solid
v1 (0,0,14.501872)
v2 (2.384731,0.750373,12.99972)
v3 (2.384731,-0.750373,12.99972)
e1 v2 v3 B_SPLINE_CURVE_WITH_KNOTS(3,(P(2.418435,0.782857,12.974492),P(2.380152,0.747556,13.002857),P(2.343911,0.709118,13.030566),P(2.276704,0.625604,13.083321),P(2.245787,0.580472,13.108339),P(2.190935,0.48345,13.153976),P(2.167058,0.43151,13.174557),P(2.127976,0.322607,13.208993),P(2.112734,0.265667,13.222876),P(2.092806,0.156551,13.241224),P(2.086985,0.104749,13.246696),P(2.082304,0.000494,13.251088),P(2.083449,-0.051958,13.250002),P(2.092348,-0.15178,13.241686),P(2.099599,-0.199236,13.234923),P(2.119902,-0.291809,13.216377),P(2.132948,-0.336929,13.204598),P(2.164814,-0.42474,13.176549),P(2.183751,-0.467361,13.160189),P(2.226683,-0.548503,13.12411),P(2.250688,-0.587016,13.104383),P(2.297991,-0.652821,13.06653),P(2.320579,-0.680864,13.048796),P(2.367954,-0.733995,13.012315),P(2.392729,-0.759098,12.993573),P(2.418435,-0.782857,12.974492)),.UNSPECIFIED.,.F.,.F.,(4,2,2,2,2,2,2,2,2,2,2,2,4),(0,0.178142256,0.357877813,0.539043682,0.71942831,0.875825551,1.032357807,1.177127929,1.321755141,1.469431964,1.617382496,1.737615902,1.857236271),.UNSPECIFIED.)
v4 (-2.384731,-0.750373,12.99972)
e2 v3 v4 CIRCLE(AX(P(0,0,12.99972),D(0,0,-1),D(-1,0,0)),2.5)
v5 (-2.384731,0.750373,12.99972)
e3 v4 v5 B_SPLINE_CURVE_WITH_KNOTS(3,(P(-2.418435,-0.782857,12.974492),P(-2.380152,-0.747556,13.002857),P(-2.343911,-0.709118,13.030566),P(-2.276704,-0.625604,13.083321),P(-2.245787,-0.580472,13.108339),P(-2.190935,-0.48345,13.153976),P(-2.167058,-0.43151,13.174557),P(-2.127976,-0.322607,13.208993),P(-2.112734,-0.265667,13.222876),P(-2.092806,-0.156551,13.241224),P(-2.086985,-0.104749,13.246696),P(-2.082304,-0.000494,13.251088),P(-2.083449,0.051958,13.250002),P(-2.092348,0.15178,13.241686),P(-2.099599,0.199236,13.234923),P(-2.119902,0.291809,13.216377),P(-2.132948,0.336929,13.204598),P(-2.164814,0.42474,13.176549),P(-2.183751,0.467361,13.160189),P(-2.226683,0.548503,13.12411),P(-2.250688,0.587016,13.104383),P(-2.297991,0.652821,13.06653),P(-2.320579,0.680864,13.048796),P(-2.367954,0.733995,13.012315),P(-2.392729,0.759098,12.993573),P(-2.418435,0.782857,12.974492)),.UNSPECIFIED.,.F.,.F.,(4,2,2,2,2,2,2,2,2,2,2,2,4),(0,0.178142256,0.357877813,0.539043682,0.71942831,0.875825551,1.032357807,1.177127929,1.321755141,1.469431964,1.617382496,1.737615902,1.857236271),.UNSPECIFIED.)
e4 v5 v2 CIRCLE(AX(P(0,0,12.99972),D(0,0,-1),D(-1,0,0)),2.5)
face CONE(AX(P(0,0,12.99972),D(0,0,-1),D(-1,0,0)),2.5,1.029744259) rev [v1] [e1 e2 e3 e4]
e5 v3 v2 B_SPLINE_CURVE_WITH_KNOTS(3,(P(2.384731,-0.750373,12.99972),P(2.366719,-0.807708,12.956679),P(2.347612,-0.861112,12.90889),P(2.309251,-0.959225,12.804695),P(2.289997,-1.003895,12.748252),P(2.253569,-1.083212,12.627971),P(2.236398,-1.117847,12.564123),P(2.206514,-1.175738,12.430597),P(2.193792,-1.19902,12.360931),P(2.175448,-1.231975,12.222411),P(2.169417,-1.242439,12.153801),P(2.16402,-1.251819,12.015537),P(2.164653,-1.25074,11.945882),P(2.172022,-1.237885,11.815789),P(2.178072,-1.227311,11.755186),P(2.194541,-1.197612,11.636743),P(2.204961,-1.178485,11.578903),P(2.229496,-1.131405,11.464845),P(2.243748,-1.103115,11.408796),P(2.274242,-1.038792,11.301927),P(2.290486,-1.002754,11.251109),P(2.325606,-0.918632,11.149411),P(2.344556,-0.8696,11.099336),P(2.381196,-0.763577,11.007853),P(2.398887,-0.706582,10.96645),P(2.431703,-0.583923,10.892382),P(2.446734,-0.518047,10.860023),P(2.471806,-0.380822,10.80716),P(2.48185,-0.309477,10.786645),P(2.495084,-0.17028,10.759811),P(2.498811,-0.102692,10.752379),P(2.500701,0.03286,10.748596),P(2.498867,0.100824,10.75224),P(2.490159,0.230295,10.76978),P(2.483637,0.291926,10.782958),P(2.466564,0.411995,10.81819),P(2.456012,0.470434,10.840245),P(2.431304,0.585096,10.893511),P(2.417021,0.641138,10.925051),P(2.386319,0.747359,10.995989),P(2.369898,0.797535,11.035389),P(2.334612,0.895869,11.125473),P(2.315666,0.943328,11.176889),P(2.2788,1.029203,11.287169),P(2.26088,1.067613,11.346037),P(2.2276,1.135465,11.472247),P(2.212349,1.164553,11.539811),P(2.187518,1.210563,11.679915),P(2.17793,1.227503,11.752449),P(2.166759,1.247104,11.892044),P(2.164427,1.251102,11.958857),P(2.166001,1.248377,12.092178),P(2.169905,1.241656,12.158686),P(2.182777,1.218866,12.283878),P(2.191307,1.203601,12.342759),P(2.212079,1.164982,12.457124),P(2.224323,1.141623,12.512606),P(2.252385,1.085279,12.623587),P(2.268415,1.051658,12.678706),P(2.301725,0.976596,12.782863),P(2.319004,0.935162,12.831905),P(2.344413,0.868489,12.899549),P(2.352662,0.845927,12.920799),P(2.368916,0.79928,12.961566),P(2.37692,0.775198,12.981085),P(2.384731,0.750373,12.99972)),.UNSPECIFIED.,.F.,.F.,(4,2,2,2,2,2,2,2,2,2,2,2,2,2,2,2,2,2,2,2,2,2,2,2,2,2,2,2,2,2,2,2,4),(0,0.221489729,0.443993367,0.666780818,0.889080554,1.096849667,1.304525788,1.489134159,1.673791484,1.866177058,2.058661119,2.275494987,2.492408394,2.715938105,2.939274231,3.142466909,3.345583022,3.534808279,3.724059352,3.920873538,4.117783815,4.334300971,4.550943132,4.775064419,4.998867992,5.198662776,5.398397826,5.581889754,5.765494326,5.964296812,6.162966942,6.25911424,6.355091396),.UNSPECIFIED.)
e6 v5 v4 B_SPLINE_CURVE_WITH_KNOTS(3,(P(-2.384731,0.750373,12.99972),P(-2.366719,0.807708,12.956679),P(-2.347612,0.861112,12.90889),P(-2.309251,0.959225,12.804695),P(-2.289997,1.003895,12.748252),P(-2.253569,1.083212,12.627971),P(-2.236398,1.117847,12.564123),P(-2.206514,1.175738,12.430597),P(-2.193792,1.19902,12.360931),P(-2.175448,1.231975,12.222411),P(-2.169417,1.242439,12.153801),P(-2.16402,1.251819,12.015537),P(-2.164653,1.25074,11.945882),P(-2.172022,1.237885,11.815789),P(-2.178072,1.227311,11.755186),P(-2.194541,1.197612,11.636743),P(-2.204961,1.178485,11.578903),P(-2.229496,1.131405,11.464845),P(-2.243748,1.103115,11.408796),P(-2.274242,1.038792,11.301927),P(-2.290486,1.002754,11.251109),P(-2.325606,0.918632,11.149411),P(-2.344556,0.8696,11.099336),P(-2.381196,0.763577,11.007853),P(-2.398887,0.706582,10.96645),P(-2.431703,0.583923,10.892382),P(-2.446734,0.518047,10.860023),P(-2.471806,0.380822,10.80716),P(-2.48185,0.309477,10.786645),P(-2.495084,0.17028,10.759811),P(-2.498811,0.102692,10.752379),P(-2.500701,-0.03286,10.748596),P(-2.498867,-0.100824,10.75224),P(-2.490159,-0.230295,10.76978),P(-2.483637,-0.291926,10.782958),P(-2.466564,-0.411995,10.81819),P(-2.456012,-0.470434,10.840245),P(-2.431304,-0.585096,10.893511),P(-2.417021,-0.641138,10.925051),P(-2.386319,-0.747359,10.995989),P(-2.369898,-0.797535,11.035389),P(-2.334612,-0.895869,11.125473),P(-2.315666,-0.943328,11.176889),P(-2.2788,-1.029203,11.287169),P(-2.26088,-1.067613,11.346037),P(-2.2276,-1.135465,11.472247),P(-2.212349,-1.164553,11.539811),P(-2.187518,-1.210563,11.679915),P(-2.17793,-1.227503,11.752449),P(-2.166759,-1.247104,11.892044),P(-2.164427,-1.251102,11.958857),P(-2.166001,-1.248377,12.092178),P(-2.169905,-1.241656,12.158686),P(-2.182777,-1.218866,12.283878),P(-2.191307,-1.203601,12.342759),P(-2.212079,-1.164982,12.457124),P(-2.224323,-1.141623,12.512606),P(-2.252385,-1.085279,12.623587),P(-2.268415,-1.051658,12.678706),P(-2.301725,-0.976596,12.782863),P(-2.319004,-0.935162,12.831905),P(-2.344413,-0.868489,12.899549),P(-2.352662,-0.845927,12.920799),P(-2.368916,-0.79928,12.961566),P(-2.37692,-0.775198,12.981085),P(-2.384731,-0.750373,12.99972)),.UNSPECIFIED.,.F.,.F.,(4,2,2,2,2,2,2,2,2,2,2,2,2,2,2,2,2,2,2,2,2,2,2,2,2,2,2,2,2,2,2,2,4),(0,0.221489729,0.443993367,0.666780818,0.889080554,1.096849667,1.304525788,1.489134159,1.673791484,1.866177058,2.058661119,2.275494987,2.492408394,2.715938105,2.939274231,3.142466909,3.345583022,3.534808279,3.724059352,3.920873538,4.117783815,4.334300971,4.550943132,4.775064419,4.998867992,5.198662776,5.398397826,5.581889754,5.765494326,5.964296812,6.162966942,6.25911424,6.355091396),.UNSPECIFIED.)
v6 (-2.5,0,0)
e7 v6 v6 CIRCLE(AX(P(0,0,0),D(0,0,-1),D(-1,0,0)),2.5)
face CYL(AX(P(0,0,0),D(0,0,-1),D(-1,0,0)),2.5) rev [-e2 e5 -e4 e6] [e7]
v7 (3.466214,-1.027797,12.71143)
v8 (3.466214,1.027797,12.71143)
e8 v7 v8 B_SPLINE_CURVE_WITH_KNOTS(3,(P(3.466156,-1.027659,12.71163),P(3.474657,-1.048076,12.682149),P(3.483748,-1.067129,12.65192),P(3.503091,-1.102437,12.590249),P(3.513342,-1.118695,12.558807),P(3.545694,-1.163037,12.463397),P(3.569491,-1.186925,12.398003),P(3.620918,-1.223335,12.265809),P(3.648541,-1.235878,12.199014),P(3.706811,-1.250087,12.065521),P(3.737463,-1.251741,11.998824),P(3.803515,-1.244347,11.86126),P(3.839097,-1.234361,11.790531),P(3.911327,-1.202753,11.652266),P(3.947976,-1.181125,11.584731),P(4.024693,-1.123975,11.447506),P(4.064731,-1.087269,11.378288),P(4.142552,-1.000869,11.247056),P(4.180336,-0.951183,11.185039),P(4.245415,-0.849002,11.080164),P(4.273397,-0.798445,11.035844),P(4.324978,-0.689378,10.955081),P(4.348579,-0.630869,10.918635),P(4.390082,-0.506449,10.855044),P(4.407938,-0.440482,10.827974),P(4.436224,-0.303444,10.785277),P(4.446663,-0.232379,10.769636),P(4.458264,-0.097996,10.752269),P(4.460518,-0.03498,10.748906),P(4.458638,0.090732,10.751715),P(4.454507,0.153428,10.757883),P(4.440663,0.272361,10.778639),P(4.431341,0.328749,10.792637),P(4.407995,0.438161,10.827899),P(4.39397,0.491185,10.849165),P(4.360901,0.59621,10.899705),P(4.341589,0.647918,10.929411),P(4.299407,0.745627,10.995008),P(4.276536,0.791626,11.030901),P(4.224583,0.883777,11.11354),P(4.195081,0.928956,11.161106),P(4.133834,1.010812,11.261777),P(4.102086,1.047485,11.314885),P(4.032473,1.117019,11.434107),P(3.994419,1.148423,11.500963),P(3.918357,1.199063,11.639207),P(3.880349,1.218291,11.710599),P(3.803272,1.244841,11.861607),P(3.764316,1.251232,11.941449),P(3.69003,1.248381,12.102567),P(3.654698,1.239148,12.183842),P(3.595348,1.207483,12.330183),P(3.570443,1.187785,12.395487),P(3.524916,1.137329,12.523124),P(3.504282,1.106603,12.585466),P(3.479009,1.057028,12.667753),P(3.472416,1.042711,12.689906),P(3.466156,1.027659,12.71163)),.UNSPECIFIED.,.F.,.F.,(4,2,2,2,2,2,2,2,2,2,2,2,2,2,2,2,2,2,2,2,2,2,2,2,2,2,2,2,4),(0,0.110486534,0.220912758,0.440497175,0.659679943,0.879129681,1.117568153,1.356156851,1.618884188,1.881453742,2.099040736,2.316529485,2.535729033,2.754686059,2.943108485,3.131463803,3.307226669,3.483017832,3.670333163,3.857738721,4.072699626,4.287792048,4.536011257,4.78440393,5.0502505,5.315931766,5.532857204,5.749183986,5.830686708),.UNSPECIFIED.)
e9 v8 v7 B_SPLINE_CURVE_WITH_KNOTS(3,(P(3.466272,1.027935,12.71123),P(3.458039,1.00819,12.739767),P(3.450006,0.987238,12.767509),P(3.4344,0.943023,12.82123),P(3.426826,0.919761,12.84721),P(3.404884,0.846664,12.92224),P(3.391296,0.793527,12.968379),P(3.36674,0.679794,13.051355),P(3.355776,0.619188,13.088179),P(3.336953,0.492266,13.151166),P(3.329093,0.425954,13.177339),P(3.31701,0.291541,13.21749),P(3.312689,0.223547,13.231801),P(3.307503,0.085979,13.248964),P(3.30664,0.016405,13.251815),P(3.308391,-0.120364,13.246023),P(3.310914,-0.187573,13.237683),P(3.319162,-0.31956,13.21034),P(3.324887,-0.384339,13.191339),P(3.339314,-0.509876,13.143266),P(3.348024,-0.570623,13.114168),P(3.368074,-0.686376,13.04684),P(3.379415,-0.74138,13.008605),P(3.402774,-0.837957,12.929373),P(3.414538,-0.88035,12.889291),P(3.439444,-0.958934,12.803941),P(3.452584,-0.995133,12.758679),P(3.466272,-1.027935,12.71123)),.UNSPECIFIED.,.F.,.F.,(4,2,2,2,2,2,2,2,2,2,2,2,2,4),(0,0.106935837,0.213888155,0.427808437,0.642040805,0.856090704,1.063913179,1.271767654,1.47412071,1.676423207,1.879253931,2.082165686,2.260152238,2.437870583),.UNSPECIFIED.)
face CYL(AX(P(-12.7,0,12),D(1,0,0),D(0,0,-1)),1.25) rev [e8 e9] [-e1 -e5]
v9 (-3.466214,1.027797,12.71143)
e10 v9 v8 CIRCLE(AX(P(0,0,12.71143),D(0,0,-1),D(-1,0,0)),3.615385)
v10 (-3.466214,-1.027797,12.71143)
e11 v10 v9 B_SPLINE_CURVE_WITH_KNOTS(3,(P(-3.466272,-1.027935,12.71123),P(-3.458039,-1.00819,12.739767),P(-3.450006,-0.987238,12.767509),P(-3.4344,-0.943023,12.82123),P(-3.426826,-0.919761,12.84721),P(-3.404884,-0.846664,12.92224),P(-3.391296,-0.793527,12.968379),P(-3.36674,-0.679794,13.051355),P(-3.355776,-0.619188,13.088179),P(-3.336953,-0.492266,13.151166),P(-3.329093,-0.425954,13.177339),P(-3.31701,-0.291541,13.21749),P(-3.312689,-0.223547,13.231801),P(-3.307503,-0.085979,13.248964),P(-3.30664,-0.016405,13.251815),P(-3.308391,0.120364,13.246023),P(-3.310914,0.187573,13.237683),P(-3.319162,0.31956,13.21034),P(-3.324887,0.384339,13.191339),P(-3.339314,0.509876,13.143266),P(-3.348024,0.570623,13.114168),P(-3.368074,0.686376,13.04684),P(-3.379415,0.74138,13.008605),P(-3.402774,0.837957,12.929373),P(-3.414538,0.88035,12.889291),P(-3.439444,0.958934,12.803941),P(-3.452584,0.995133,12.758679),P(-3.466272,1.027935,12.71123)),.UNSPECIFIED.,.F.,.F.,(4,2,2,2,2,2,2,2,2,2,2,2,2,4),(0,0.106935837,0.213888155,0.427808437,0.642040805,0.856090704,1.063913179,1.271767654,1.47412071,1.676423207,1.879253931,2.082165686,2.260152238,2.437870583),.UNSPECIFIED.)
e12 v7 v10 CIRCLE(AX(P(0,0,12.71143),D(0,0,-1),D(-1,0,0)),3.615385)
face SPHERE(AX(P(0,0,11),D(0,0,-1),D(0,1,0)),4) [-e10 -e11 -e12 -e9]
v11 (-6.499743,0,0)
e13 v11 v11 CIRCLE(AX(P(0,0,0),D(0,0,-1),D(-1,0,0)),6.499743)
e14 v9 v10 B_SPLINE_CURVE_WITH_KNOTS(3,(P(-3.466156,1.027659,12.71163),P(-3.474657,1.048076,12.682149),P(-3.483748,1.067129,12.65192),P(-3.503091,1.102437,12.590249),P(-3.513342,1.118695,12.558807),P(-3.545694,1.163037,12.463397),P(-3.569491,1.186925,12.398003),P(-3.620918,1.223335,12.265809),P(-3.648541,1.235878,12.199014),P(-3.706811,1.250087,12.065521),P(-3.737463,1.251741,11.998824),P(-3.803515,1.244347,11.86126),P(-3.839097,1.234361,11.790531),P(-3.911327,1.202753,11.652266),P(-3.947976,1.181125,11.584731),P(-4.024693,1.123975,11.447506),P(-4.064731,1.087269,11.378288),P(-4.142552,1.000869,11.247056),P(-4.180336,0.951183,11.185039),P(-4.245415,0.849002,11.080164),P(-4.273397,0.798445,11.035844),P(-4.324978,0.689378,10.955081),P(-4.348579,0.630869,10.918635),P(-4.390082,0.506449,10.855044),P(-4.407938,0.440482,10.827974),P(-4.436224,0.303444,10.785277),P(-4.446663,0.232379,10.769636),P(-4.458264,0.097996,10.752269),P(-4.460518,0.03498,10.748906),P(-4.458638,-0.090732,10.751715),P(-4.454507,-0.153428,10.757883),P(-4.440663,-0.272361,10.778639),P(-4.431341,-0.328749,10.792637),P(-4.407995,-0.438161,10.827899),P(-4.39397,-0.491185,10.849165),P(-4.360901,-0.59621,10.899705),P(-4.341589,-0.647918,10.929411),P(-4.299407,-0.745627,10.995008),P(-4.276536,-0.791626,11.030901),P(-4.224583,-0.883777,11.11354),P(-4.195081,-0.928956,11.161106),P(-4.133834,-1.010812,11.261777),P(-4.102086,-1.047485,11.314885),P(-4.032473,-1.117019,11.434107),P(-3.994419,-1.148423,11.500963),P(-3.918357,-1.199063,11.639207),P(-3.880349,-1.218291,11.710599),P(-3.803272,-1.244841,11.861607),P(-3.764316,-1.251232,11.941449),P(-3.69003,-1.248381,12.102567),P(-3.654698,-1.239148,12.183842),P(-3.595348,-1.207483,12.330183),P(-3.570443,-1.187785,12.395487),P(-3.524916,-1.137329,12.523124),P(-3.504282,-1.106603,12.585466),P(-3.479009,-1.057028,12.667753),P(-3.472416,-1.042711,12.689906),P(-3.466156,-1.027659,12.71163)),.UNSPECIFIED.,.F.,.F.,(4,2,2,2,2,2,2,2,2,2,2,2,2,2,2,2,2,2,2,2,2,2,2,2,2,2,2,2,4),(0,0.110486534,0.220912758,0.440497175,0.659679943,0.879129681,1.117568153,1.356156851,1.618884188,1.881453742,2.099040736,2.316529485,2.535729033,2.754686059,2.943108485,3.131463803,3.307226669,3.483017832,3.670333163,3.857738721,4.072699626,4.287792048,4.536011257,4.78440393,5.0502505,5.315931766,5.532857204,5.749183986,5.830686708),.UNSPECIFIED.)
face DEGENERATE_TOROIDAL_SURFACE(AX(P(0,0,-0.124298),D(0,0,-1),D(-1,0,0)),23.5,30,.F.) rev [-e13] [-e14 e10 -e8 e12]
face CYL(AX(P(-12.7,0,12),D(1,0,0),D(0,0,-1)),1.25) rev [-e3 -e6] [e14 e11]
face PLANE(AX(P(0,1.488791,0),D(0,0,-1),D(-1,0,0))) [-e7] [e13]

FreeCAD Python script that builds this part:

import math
import FreeCAD as App
import Part
import Sketcher

V = App.Vector

doc = App.newDocument("Part")
body = doc.addObject("PartDesign::Body", "Body")

sketch1 = body.newObject("Sketcher::SketchObject", "Sketch")
sketch1.AttachmentSupport = (doc.getObject("YZ_Plane"), [""])
sketch1.MapMode = "FlatFace"
sketch1.addGeometry([
    Part.LineSegment(V(0, 15, 0), V(0, 0, 0)),
    Part.LineSegment(V(0, 0, 0), V(6.5, 0, 0)),
    Part.ArcOfCircle(Part.Circle(V(-23.5, -0.1, 0), V(0, 0, 1), 30), math.radians(0), math.radians(25)),
    Part.ArcOfCircle(Part.Circle(V(0, 11, 0), V(0, 0, 1), 4), math.radians(25), math.radians(90)),
], False)
sketch1.addConstraint([
    Sketcher.Constraint("Coincident", 0, 2, 1, 1),
    Sketcher.Constraint("Coincident", 1, 2, 2, 1),
    Sketcher.Constraint("Tangent", 2, 2, 3, 1),
    Sketcher.Constraint("Coincident", 3, 2, 0, 1),
    Sketcher.Constraint("Vertical", 0),
    Sketcher.Constraint("Horizontal", 1),
    Sketcher.Constraint("Coincident", 0, 2, -1, 1),
    Sketcher.Constraint("PointOnObject", 3, 3, -2),
    Sketcher.Constraint("Radius", 2, 30.0),
    Sketcher.Constraint("Radius", 3, 4.0),
    Sketcher.Constraint("DistanceY", 0, 2, 0, 1, 15.0),
    Sketcher.Constraint("DistanceX", 2, 3, -1, 1, 23.5),
])
revolution = body.newObject("PartDesign::Revolution", "Revolution")
revolution.Profile = sketch1
revolution.ReferenceAxis = (sketch1, ["V_Axis"])
revolution.Angle = 360

sketch2 = body.newObject("Sketcher::SketchObject", "Sketch001")
sketch2.AttachmentSupport = (doc.getObject("XY_Plane"), [""])
sketch2.MapMode = "FlatFace"
sketch2.addGeometry(Part.Circle(V(0, 0, 0), V(0, 0, 1), 2.5), False)
sketch2.addConstraint([
    Sketcher.Constraint("Coincident", 0, 3, -1, 1),
    Sketcher.Constraint("Diameter", 0, 5.0),
])
doc.recompute()
hole = body.newObject("PartDesign::Hole", "Hole")
hole.Profile = sketch2
hole.ThreadType = "None"
hole.Diameter = 5
hole.DepthType = "Dimension"
hole.Depth = 12.99972
hole.DrillPoint = "Angled"
hole.DrillPointAngle = 118
hole.Reversed = True

sketch3 = body.newObject("Sketcher::SketchObject", "Sketch002")
sketch3.AttachmentSupport = (doc.getObject("YZ_Plane"), [""])
sketch3.MapMode = "FlatFace"
sketch3.addGeometry(Part.Circle(V(0, 12, 0), V(0, 0, 1), 1.2), False)
sketch3.addConstraint([
    Sketcher.Constraint("PointOnObject", 0, 3, -2),
    Sketcher.Constraint("Diameter", 0, 2.5),
    Sketcher.Constraint("DistanceY", -1, 1, 0, 3, 12.0),
])
pocket1 = body.newObject("PartDesign::Pocket", "Pocket")
pocket1.Profile = sketch3
pocket1.Length = 25.4
pocket1.Midplane = True

doc.recompute()
